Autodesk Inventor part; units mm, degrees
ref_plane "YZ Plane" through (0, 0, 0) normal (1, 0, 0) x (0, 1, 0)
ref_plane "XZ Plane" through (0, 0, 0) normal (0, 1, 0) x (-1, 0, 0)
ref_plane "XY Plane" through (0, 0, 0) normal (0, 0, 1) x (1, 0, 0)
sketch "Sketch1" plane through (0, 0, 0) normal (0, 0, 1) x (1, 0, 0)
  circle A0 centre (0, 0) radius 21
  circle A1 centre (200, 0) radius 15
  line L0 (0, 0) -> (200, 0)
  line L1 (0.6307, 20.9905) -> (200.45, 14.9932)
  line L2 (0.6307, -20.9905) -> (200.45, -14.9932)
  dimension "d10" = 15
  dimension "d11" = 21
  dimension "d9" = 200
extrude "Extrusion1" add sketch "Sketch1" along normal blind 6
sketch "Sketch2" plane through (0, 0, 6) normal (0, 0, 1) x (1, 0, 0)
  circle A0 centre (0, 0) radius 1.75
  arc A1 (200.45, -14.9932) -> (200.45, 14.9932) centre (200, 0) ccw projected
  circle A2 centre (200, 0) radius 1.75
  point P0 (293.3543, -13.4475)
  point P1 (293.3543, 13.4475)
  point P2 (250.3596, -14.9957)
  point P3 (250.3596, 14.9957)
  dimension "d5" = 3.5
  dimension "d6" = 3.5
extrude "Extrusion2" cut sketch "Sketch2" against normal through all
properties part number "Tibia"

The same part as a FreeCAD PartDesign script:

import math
import FreeCAD as App
import Part
import Sketcher
from FreeCAD import Vector

doc = App.newDocument("Part")
params = doc.addObject("Spreadsheet::Sheet", "Params")
for row, (alias, value) in enumerate([
    ("sketch1_radius", "21 mm"),
    ("sketch1_radius2", "15 mm"),
    ("pad1_length", "6 mm"),
    ("sketch2_diameter", "3.5 mm"),
], start=1):
    params.set(f"A{row}", alias)
    params.set(f"B{row}", "=" + value)
    params.setAlias(f"B{row}", alias)

body = doc.addObject("PartDesign::Body", "Body")

# Sketch on XY plane
sketch1 = doc.addObject("Sketcher::SketchObject", "Sketch")
body.addObject(sketch1)
sketch1.AttachmentSupport = (doc.XY_Plane, [""])
sketch1.MapMode = "FlatFace"
sketch1.addGeometry([
    Part.ArcOfCircle(Part.Circle(Vector(0, 0, 0), Vector(0, 0, 1), 21), math.radians(88.278956), math.radians(271.721044)),
    Part.LineSegment(Vector(0.6307, -20.9905, 0), Vector(200.45, -14.9932, 0)),
    Part.ArcOfCircle(Part.Circle(Vector(200, 0, 0), Vector(0, 0, 1), 15), math.radians(-88.280863), math.radians(88.280863)),
    Part.LineSegment(Vector(200.45, 14.9932, 0), Vector(0.6307, 20.9905, 0)),
], False)
sketch1.addConstraint([
    Sketcher.Constraint("Tangent", 0, 2, 1, 1),
    Sketcher.Constraint("Tangent", 1, 2, 2, 1),
    Sketcher.Constraint("Tangent", 2, 2, 3, 1),
    Sketcher.Constraint("Tangent", 3, 2, 0, 1),
    Sketcher.Constraint("Coincident", 0, 3, -1, 1),
    Sketcher.Constraint("PointOnObject", 2, 3, -1),
    Sketcher.Constraint("Radius", 0, 21.0),
    Sketcher.Constraint("Radius", 2, 15.0),
    Sketcher.Constraint("DistanceX", -1, 1, 2, 3, 200.0),
])
sketch1.setExpression("Constraints[6]", "Params.sketch1_radius")
sketch1.setExpression("Constraints[7]", "Params.sketch1_radius2")
pad1 = doc.addObject("PartDesign::Pad", "Pad")
body.addObject(pad1)
pad1.Profile = sketch1
pad1.setExpression("Length", "Params.pad1_length")

# Sketch on XY plane
sketch2 = doc.addObject("Sketcher::SketchObject", "Sketch001")
body.addObject(sketch2)
sketch2.AttachmentSupport = (doc.XY_Plane, [""])
sketch2.MapMode = "FlatFace"
sketch2.AttachmentOffset = App.Placement(Vector(0, 0, 6), App.Rotation())
sketch2.addGeometry([
    Part.Circle(Vector(0, 0, 0), Vector(0, 0, 1), 1.75),
    Part.Circle(Vector(200, 0, 0), Vector(0, 0, 1), 1.75),
], False)
sketch2.addConstraint([
    Sketcher.Constraint("Coincident", 0, 3, -1, 1),
    Sketcher.Constraint("Equal", 0, 1),
    Sketcher.Constraint("PointOnObject", 1, 3, -1),
    Sketcher.Constraint("Diameter", 0, 3.5),
    Sketcher.Constraint("DistanceX", -1, 1, 1, 3, 200.0),
])
sketch2.setExpression("Constraints[3]", "Params.sketch2_diameter")
pocket1 = doc.addObject("PartDesign::Pocket", "Pocket")
body.addObject(pocket1)
pocket1.Profile = sketch2
pocket1.Type = "ThroughAll"

doc.recompute()
